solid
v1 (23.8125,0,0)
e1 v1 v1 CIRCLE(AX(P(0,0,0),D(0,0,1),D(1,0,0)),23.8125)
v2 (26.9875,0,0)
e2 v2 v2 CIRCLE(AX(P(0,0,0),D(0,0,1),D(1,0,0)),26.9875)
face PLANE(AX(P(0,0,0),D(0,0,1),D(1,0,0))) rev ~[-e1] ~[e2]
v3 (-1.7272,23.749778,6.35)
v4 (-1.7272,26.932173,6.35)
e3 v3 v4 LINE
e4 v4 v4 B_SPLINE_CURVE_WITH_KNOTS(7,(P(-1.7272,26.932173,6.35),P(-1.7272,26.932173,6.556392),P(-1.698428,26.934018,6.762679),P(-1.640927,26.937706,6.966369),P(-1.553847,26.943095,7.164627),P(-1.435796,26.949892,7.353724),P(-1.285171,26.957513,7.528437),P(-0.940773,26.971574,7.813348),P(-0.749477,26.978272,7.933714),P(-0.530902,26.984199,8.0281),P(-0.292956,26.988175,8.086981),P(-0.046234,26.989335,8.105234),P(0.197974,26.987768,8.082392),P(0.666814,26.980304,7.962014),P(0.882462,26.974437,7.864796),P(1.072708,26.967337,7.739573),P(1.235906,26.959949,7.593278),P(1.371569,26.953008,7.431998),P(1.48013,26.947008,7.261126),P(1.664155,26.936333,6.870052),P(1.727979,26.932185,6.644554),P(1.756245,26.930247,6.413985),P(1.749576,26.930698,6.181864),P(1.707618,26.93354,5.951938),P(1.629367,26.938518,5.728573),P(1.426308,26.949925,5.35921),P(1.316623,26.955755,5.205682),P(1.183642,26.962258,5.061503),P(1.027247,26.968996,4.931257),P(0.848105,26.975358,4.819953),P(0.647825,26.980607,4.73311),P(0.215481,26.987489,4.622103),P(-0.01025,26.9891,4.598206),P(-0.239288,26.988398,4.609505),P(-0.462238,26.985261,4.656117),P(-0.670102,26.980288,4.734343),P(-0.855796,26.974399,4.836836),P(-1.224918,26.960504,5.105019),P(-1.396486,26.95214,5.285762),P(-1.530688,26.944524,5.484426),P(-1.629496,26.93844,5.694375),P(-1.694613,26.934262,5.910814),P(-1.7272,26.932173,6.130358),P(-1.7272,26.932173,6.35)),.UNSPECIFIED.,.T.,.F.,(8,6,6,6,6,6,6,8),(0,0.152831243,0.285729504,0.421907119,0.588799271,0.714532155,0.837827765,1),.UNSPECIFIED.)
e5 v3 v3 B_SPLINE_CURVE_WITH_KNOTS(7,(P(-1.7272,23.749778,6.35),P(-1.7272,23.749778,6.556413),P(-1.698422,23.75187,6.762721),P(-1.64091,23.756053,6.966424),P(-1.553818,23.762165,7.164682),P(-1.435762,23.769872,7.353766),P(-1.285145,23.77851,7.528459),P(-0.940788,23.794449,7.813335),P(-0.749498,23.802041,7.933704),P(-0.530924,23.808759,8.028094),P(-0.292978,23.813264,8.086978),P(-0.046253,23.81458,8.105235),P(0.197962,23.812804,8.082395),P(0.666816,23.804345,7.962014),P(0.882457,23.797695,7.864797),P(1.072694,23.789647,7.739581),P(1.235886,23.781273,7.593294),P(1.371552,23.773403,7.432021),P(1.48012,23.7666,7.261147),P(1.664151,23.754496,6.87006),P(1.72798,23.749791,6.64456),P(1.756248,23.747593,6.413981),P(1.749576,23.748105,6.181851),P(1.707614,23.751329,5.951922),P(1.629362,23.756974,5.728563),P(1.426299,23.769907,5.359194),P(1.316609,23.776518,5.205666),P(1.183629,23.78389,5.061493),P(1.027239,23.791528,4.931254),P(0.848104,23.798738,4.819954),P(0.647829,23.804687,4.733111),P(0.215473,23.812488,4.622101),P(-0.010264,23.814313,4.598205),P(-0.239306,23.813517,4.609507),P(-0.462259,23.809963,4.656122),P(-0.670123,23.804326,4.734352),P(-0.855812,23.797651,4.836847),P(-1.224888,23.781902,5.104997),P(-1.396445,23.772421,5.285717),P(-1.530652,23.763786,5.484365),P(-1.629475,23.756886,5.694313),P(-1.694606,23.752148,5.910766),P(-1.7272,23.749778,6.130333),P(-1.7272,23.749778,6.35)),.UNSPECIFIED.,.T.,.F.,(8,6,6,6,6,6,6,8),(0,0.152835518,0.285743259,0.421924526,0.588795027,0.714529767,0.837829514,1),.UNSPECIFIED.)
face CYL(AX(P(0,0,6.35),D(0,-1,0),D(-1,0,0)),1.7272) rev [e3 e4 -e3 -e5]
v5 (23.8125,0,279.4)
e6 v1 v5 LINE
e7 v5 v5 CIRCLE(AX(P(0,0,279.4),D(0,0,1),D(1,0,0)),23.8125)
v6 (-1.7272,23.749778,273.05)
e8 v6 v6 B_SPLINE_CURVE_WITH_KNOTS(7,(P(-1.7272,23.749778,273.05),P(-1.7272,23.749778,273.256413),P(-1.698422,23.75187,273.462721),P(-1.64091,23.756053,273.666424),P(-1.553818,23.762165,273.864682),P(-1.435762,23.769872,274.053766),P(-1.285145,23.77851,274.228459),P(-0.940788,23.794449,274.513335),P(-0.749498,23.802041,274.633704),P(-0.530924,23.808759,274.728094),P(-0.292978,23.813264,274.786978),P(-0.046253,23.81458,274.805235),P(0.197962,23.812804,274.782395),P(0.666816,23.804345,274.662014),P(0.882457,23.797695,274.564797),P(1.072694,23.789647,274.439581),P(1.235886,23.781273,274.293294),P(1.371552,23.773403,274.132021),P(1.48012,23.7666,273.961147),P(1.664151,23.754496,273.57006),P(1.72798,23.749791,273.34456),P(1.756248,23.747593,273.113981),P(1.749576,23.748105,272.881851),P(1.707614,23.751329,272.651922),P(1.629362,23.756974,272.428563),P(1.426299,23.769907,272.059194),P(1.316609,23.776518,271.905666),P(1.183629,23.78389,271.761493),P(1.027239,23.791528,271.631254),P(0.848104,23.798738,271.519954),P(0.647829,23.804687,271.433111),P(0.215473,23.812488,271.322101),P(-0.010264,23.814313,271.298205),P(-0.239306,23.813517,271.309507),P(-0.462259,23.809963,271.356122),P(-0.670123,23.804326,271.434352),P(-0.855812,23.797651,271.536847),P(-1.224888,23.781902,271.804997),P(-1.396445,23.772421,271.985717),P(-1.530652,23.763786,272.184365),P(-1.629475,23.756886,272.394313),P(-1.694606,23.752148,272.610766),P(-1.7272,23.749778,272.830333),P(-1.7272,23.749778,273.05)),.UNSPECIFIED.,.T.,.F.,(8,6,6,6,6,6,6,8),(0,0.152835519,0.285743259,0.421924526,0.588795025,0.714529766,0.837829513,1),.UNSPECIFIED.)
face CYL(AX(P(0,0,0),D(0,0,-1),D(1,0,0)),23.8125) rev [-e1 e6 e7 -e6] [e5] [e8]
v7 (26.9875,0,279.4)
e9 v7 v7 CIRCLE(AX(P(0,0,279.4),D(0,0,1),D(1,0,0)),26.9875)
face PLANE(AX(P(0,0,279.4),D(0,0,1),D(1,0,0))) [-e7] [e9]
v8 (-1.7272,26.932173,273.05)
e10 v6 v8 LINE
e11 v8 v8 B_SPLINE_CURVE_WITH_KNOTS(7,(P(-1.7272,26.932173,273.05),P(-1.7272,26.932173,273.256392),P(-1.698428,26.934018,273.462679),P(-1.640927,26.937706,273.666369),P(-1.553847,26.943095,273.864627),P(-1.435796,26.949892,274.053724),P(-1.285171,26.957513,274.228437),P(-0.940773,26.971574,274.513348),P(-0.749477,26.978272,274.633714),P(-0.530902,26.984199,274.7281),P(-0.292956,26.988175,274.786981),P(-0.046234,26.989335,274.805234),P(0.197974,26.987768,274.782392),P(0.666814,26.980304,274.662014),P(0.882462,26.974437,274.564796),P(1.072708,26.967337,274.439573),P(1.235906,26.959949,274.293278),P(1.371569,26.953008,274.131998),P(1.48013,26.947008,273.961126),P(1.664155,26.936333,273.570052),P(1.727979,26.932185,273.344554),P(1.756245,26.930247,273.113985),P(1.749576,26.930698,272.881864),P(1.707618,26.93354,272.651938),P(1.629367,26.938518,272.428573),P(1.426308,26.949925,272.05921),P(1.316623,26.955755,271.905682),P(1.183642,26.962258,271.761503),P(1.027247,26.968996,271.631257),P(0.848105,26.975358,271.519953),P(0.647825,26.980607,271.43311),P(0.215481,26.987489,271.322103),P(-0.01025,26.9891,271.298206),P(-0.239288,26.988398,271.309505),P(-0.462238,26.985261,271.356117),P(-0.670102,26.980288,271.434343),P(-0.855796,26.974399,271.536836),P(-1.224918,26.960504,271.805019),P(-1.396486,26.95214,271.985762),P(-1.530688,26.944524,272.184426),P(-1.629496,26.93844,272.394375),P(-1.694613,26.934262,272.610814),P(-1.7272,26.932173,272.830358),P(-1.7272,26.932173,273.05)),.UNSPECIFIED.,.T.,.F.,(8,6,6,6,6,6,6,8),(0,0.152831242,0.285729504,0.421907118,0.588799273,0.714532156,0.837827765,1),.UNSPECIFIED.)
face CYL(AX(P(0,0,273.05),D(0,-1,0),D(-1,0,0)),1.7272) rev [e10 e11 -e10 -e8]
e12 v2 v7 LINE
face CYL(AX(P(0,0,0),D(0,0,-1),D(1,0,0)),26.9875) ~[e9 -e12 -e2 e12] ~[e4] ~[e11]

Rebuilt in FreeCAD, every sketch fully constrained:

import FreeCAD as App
import Part
import Sketcher
Q = App.Units.Quantity

doc = App.newDocument("Part")
body = doc.addObject("PartDesign::Body", "Body")

sketch1 = body.newObject("Sketcher::SketchObject", "Sketch")
sketch1.AttachmentSupport = (doc.getObject("XY_Plane"), [""])
sketch1.MapMode = "FlatFace"
sketch1.addGeometry([
    Part.Circle(App.Vector(0, 0, 0), App.Vector(0, 0, 1), 27),
    Part.Circle(App.Vector(0, 0, 0), App.Vector(0, 0, 1), 24),
], False)
sketch1.addConstraint([
    Sketcher.Constraint("Coincident", 0, 3, -1, 1),
    Sketcher.Constraint("Coincident", 1, 3, -1, 1),
    Sketcher.Constraint("Diameter", 0, Q("2.125 in")),
    Sketcher.Constraint("Diameter", 1, Q("1.875 in")),
])
pad1 = body.newObject("PartDesign::Pad", "Pad")
pad1.Profile = sketch1
pad1.Length = Q("11 in")

sketch2 = body.newObject("Sketcher::SketchObject", "Sketch001")
sketch2.AttachmentSupport = (doc.getObject("XZ_Plane"), [""])
sketch2.MapMode = "FlatFace"
sketch2.addGeometry([
    Part.Circle(App.Vector(0, 6.3, 0), App.Vector(0, 0, 1), 1.7),
    Part.Circle(App.Vector(0, 273.1, 0), App.Vector(0, 0, 1), 1.7),
], False)
sketch2.addConstraint([
    Sketcher.Constraint("Equal", 0, 1),
    Sketcher.Constraint("PointOnObject", 0, 3, -2),
    Sketcher.Constraint("PointOnObject", 1, 3, -2),
    Sketcher.Constraint("Diameter", 0, Q("0.136 in")),
    Sketcher.Constraint("DistanceY", -1, 1, 0, 3, Q("0.25 in")),
    Sketcher.Constraint("DistanceY", 0, 3, 1, 3, Q("10.5 in")),
])
pocket1 = body.newObject("PartDesign::Pocket", "Pocket")
pocket1.Profile = sketch2
pocket1.Type = "ThroughAll"

doc.recompute()
